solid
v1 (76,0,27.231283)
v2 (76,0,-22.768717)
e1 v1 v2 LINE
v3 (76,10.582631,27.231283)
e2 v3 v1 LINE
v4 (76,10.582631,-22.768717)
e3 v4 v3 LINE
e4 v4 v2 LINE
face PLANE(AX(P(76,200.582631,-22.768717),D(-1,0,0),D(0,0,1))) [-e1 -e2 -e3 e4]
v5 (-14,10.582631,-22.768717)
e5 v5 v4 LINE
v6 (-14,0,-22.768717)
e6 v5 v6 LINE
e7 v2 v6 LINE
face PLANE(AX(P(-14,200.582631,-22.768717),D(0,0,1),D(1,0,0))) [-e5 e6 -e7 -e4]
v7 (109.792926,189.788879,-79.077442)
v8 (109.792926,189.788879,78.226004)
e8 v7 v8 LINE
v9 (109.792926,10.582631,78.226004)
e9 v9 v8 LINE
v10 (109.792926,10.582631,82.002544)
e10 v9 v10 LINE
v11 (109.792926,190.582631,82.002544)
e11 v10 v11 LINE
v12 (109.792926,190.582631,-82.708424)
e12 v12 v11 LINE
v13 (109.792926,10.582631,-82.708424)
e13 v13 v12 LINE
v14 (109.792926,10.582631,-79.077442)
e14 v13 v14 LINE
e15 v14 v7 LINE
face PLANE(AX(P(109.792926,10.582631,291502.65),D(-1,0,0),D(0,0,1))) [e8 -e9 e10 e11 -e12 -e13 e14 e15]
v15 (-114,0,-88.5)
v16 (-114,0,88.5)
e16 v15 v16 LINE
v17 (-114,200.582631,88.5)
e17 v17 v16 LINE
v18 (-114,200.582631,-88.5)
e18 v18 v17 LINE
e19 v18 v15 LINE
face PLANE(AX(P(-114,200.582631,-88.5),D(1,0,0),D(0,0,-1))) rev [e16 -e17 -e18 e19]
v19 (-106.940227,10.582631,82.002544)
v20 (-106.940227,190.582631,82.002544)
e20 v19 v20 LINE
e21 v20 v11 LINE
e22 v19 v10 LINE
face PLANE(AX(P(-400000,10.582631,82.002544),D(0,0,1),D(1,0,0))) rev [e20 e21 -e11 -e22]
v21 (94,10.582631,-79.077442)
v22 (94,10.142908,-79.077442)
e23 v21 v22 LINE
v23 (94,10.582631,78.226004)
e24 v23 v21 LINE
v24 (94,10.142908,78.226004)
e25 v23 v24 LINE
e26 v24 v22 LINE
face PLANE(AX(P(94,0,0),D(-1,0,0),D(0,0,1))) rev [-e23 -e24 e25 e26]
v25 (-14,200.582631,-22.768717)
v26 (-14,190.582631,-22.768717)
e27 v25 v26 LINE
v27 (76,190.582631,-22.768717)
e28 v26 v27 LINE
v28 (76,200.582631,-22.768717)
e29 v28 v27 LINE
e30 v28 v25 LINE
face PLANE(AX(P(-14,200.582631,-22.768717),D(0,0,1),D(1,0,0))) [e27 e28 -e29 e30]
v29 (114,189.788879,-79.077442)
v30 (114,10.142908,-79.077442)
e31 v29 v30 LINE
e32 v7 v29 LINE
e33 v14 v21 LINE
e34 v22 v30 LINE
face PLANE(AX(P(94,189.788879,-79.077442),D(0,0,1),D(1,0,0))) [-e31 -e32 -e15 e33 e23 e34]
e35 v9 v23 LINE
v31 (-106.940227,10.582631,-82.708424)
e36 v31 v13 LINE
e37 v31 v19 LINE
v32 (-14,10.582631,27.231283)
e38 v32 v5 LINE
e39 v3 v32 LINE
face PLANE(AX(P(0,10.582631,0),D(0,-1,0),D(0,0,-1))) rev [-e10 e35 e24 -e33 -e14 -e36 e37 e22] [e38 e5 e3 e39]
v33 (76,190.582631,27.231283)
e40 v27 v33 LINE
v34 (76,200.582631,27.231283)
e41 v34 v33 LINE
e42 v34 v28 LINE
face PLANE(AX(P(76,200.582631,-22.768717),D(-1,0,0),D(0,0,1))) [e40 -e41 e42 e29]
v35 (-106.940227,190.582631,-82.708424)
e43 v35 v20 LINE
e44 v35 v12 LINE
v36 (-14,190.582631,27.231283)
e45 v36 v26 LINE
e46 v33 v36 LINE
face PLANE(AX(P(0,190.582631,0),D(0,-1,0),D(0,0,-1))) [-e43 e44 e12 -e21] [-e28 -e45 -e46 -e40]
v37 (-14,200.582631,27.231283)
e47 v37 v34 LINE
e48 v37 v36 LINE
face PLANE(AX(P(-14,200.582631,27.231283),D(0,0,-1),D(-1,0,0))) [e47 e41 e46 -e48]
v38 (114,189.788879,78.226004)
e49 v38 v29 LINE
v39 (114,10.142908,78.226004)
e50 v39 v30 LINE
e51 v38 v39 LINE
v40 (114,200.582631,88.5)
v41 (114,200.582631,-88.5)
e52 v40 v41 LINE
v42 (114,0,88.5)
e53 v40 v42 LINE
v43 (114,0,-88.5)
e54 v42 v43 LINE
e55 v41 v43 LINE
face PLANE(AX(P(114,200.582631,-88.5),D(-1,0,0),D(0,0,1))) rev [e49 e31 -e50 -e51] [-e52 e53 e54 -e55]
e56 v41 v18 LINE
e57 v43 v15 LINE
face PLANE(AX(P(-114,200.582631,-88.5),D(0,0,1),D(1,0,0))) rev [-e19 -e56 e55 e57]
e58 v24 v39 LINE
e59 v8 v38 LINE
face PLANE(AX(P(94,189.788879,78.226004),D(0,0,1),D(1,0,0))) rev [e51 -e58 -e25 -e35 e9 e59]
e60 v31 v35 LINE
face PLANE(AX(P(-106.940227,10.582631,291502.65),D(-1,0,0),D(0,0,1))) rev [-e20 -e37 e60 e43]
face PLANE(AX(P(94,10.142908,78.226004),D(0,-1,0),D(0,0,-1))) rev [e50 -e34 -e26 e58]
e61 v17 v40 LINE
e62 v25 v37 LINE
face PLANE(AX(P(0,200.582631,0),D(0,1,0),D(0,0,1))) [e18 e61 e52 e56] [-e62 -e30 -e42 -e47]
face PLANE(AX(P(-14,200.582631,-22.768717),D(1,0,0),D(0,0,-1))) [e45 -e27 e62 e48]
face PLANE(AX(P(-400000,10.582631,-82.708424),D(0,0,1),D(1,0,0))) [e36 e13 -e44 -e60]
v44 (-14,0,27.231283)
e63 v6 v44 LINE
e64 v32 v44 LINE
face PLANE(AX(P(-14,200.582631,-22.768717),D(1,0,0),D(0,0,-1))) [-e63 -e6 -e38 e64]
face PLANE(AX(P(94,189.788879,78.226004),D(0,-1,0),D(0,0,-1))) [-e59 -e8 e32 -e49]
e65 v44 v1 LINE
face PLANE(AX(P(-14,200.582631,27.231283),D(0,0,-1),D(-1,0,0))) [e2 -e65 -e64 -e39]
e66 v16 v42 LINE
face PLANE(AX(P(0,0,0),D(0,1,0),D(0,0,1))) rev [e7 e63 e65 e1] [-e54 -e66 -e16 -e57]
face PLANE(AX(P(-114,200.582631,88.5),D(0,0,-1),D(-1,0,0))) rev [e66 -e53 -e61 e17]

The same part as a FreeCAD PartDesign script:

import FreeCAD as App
import Part
import Sketcher

V = App.Vector


def add_polygon(sketch, points):
    """Adds a closed chain of lines whose ends are joined by coincident constraints."""
    first, n = sketch.GeometryCount, len(points)
    for a, b in zip(points, points[1:] + points[:1]):
        sketch.addGeometry(Part.LineSegment(App.Vector(*a, 0), App.Vector(*b, 0)), False)
    for i in range(n):
        sketch.addConstraint(Sketcher.Constraint("Coincident", first + i, 2, first + (i + 1) % n, 1))

doc = App.newDocument("Part")
params = doc.addObject("Spreadsheet::Sheet", "Params")
for row, (alias, value) in enumerate([
    ("sketch1_width", "228 mm"),
    ("sketch1_width2", "90 mm"),
    ("sketch1_height", "177 mm"),
    ("sketch1_height2", "50 mm"),
    ("pad1_length", "200.582631 mm"),
    ("pocket1_length", "180 mm"),
    ("pocket2_length", "20 mm"),
], start=1):
    params.set(f"A{row}", alias)
    params.set(f"B{row}", "=" + value)
    params.setAlias(f"B{row}", alias)

body = doc.addObject("PartDesign::Body", "Body")

# Sketch on XZ plane
sketch1 = body.newObject("Sketcher::SketchObject", "Sketch")
sketch1.AttachmentSupport = (doc.getObject("XZ_Plane"), [""])
sketch1.MapMode = "FlatFace"
add_polygon(sketch1, [(-114, -88), (-114, 88), (114, 88), (114, -88)])  # lines 0-3
add_polygon(sketch1, [(76, 27), (-14, 27), (-14, -23), (76, -23)])  # lines 4-7
sketch1.addConstraint(Sketcher.Constraint("Vertical", 0))
sketch1.addConstraint(Sketcher.Constraint("Horizontal", 1))
sketch1.addConstraint(Sketcher.Constraint("Vertical", 2))
sketch1.addConstraint(Sketcher.Constraint("Horizontal", 3))
sketch1.addConstraint(Sketcher.Constraint("Horizontal", 4))
sketch1.addConstraint(Sketcher.Constraint("Vertical", 5))
sketch1.addConstraint(Sketcher.Constraint("Horizontal", 6))
sketch1.addConstraint(Sketcher.Constraint("Vertical", 7))
sketch1.addConstraint(Sketcher.Constraint("Symmetric", 0, 2, 2, 2, -1, 1))
sketch1.addConstraint(Sketcher.Constraint("DistanceX", 1, 1, 1, 2, 228.0))
sketch1.addConstraint(Sketcher.Constraint("DistanceX", 4, 2, 4, 1, 90.0))
sketch1.addConstraint(Sketcher.Constraint("DistanceY", 0, 1, 0, 2, 177.0))
sketch1.addConstraint(Sketcher.Constraint("DistanceY", 5, 2, 5, 1, 50.0))
sketch1.addConstraint(Sketcher.Constraint("DistanceX", 4, 2, -1, 1, 14.0))
sketch1.addConstraint(Sketcher.Constraint("DistanceY", -1, 1, 4, 2, 27.231283))
sketch1.setExpression("Constraints[17]", "Params.sketch1_width")
sketch1.setExpression("Constraints[18]", "Params.sketch1_width2")
sketch1.setExpression("Constraints[19]", "Params.sketch1_height")
sketch1.setExpression("Constraints[20]", "Params.sketch1_height2")
pad1 = body.newObject("PartDesign::Pad", "Pad")
pad1.Profile = sketch1
pad1.setExpression("Length", "Params.pad1_length")
pad1.Reversed = True

# Sketch on XZ plane
sketch2 = body.newObject("Sketcher::SketchObject", "Sketch001")
sketch2.AttachmentSupport = (doc.getObject("XZ_Plane"), [""])
sketch2.MapMode = "FlatFace"
sketch2.AttachmentOffset = App.Placement(V(0, 0, -190.582631), App.Rotation())
add_polygon(sketch2, [(-107, -83), (-107, 82), (2, 82), (62, 82), (110, 82), (110, -83), (2, -83)])  # lines 0-6
add_polygon(sketch2, [(62, 20), (2, 20), (2, -8), (62, -8)])  # lines 7-10
sketch2.addConstraint(Sketcher.Constraint("Vertical", 0))
sketch2.addConstraint(Sketcher.Constraint("Horizontal", 1))
sketch2.addConstraint(Sketcher.Constraint("Horizontal", 2))
sketch2.addConstraint(Sketcher.Constraint("Horizontal", 3))
sketch2.addConstraint(Sketcher.Constraint("Vertical", 4))
sketch2.addConstraint(Sketcher.Constraint("Horizontal", 5))
sketch2.addConstraint(Sketcher.Constraint("Horizontal", 6))
sketch2.addConstraint(Sketcher.Constraint("Horizontal", 7))
sketch2.addConstraint(Sketcher.Constraint("Vertical", 8))
sketch2.addConstraint(Sketcher.Constraint("Horizontal", 9))
sketch2.addConstraint(Sketcher.Constraint("Vertical", 10))
sketch2.addConstraint(Sketcher.Constraint("Vertical", 1, 2, 5, 2))
sketch2.addConstraint(Sketcher.Constraint("Vertical", 5, 2, 7, 2))
sketch2.addConstraint(Sketcher.Constraint("Vertical", 2, 2, 9, 2))
sketch2.addConstraint(Sketcher.Constraint("DistanceX", 1, 1, 1, 2, 108.8384))
sketch2.addConstraint(Sketcher.Constraint("DistanceX", 3, 1, 3, 2, 47.6121))
sketch2.addConstraint(Sketcher.Constraint("DistanceY", 0, 1, 0, 2, 164.710969))
sketch2.addConstraint(Sketcher.Constraint("DistanceX", 2, 1, 2, 2, 60.282654))
sketch2.addConstraint(Sketcher.Constraint("DistanceY", 8, 2, 8, 1, 28.491964))
sketch2.addConstraint(Sketcher.Constraint("DistanceY", 8, 2, -1, 1, 8.029391))
sketch2.addConstraint(Sketcher.Constraint("DistanceY", 7, 2, 1, 2, 61.539972))
sketch2.addConstraint(Sketcher.Constraint("DistanceX", 0, 2, -1, 1, 106.940227))
pocket1 = body.newObject("PartDesign::Pocket", "Pocket")
pocket1.Profile = sketch2
pocket1.setExpression("Length", "Params.pocket1_length")
pocket1.Reversed = True

# Sketch on YZ plane
sketch3 = body.newObject("Sketcher::SketchObject", "Sketch002")
sketch3.AttachmentSupport = (doc.getObject("YZ_Plane"), [""])
sketch3.MapMode = "FlatFace"
sketch3.AttachmentOffset = App.Placement(V(0, 0, 114), App.Rotation())
add_polygon(sketch3, [(190, 78), (10, 78), (10, -79), (190, -79)])  # lines 0-3
sketch3.addConstraint(Sketcher.Constraint("Horizontal", 0))
sketch3.addConstraint(Sketcher.Constraint("Vertical", 1))
sketch3.addConstraint(Sketcher.Constraint("Horizontal", 2))
sketch3.addConstraint(Sketcher.Constraint("Vertical", 3))
sketch3.addConstraint(Sketcher.Constraint("DistanceX", 0, 2, 0, 1, 179.645971))
sketch3.addConstraint(Sketcher.Constraint("DistanceY", 1, 2, 1, 1, 157.303447))
sketch3.addConstraint(Sketcher.Constraint("DistanceX", -1, 1, 0, 2, 10.142908))
sketch3.addConstraint(Sketcher.Constraint("DistanceY", -1, 1, 0, 2, 78.226004))
pocket2 = body.newObject("PartDesign::Pocket", "Pocket001")
pocket2.Profile = sketch3
pocket2.setExpression("Length", "Params.pocket2_length")

doc.recompute()
